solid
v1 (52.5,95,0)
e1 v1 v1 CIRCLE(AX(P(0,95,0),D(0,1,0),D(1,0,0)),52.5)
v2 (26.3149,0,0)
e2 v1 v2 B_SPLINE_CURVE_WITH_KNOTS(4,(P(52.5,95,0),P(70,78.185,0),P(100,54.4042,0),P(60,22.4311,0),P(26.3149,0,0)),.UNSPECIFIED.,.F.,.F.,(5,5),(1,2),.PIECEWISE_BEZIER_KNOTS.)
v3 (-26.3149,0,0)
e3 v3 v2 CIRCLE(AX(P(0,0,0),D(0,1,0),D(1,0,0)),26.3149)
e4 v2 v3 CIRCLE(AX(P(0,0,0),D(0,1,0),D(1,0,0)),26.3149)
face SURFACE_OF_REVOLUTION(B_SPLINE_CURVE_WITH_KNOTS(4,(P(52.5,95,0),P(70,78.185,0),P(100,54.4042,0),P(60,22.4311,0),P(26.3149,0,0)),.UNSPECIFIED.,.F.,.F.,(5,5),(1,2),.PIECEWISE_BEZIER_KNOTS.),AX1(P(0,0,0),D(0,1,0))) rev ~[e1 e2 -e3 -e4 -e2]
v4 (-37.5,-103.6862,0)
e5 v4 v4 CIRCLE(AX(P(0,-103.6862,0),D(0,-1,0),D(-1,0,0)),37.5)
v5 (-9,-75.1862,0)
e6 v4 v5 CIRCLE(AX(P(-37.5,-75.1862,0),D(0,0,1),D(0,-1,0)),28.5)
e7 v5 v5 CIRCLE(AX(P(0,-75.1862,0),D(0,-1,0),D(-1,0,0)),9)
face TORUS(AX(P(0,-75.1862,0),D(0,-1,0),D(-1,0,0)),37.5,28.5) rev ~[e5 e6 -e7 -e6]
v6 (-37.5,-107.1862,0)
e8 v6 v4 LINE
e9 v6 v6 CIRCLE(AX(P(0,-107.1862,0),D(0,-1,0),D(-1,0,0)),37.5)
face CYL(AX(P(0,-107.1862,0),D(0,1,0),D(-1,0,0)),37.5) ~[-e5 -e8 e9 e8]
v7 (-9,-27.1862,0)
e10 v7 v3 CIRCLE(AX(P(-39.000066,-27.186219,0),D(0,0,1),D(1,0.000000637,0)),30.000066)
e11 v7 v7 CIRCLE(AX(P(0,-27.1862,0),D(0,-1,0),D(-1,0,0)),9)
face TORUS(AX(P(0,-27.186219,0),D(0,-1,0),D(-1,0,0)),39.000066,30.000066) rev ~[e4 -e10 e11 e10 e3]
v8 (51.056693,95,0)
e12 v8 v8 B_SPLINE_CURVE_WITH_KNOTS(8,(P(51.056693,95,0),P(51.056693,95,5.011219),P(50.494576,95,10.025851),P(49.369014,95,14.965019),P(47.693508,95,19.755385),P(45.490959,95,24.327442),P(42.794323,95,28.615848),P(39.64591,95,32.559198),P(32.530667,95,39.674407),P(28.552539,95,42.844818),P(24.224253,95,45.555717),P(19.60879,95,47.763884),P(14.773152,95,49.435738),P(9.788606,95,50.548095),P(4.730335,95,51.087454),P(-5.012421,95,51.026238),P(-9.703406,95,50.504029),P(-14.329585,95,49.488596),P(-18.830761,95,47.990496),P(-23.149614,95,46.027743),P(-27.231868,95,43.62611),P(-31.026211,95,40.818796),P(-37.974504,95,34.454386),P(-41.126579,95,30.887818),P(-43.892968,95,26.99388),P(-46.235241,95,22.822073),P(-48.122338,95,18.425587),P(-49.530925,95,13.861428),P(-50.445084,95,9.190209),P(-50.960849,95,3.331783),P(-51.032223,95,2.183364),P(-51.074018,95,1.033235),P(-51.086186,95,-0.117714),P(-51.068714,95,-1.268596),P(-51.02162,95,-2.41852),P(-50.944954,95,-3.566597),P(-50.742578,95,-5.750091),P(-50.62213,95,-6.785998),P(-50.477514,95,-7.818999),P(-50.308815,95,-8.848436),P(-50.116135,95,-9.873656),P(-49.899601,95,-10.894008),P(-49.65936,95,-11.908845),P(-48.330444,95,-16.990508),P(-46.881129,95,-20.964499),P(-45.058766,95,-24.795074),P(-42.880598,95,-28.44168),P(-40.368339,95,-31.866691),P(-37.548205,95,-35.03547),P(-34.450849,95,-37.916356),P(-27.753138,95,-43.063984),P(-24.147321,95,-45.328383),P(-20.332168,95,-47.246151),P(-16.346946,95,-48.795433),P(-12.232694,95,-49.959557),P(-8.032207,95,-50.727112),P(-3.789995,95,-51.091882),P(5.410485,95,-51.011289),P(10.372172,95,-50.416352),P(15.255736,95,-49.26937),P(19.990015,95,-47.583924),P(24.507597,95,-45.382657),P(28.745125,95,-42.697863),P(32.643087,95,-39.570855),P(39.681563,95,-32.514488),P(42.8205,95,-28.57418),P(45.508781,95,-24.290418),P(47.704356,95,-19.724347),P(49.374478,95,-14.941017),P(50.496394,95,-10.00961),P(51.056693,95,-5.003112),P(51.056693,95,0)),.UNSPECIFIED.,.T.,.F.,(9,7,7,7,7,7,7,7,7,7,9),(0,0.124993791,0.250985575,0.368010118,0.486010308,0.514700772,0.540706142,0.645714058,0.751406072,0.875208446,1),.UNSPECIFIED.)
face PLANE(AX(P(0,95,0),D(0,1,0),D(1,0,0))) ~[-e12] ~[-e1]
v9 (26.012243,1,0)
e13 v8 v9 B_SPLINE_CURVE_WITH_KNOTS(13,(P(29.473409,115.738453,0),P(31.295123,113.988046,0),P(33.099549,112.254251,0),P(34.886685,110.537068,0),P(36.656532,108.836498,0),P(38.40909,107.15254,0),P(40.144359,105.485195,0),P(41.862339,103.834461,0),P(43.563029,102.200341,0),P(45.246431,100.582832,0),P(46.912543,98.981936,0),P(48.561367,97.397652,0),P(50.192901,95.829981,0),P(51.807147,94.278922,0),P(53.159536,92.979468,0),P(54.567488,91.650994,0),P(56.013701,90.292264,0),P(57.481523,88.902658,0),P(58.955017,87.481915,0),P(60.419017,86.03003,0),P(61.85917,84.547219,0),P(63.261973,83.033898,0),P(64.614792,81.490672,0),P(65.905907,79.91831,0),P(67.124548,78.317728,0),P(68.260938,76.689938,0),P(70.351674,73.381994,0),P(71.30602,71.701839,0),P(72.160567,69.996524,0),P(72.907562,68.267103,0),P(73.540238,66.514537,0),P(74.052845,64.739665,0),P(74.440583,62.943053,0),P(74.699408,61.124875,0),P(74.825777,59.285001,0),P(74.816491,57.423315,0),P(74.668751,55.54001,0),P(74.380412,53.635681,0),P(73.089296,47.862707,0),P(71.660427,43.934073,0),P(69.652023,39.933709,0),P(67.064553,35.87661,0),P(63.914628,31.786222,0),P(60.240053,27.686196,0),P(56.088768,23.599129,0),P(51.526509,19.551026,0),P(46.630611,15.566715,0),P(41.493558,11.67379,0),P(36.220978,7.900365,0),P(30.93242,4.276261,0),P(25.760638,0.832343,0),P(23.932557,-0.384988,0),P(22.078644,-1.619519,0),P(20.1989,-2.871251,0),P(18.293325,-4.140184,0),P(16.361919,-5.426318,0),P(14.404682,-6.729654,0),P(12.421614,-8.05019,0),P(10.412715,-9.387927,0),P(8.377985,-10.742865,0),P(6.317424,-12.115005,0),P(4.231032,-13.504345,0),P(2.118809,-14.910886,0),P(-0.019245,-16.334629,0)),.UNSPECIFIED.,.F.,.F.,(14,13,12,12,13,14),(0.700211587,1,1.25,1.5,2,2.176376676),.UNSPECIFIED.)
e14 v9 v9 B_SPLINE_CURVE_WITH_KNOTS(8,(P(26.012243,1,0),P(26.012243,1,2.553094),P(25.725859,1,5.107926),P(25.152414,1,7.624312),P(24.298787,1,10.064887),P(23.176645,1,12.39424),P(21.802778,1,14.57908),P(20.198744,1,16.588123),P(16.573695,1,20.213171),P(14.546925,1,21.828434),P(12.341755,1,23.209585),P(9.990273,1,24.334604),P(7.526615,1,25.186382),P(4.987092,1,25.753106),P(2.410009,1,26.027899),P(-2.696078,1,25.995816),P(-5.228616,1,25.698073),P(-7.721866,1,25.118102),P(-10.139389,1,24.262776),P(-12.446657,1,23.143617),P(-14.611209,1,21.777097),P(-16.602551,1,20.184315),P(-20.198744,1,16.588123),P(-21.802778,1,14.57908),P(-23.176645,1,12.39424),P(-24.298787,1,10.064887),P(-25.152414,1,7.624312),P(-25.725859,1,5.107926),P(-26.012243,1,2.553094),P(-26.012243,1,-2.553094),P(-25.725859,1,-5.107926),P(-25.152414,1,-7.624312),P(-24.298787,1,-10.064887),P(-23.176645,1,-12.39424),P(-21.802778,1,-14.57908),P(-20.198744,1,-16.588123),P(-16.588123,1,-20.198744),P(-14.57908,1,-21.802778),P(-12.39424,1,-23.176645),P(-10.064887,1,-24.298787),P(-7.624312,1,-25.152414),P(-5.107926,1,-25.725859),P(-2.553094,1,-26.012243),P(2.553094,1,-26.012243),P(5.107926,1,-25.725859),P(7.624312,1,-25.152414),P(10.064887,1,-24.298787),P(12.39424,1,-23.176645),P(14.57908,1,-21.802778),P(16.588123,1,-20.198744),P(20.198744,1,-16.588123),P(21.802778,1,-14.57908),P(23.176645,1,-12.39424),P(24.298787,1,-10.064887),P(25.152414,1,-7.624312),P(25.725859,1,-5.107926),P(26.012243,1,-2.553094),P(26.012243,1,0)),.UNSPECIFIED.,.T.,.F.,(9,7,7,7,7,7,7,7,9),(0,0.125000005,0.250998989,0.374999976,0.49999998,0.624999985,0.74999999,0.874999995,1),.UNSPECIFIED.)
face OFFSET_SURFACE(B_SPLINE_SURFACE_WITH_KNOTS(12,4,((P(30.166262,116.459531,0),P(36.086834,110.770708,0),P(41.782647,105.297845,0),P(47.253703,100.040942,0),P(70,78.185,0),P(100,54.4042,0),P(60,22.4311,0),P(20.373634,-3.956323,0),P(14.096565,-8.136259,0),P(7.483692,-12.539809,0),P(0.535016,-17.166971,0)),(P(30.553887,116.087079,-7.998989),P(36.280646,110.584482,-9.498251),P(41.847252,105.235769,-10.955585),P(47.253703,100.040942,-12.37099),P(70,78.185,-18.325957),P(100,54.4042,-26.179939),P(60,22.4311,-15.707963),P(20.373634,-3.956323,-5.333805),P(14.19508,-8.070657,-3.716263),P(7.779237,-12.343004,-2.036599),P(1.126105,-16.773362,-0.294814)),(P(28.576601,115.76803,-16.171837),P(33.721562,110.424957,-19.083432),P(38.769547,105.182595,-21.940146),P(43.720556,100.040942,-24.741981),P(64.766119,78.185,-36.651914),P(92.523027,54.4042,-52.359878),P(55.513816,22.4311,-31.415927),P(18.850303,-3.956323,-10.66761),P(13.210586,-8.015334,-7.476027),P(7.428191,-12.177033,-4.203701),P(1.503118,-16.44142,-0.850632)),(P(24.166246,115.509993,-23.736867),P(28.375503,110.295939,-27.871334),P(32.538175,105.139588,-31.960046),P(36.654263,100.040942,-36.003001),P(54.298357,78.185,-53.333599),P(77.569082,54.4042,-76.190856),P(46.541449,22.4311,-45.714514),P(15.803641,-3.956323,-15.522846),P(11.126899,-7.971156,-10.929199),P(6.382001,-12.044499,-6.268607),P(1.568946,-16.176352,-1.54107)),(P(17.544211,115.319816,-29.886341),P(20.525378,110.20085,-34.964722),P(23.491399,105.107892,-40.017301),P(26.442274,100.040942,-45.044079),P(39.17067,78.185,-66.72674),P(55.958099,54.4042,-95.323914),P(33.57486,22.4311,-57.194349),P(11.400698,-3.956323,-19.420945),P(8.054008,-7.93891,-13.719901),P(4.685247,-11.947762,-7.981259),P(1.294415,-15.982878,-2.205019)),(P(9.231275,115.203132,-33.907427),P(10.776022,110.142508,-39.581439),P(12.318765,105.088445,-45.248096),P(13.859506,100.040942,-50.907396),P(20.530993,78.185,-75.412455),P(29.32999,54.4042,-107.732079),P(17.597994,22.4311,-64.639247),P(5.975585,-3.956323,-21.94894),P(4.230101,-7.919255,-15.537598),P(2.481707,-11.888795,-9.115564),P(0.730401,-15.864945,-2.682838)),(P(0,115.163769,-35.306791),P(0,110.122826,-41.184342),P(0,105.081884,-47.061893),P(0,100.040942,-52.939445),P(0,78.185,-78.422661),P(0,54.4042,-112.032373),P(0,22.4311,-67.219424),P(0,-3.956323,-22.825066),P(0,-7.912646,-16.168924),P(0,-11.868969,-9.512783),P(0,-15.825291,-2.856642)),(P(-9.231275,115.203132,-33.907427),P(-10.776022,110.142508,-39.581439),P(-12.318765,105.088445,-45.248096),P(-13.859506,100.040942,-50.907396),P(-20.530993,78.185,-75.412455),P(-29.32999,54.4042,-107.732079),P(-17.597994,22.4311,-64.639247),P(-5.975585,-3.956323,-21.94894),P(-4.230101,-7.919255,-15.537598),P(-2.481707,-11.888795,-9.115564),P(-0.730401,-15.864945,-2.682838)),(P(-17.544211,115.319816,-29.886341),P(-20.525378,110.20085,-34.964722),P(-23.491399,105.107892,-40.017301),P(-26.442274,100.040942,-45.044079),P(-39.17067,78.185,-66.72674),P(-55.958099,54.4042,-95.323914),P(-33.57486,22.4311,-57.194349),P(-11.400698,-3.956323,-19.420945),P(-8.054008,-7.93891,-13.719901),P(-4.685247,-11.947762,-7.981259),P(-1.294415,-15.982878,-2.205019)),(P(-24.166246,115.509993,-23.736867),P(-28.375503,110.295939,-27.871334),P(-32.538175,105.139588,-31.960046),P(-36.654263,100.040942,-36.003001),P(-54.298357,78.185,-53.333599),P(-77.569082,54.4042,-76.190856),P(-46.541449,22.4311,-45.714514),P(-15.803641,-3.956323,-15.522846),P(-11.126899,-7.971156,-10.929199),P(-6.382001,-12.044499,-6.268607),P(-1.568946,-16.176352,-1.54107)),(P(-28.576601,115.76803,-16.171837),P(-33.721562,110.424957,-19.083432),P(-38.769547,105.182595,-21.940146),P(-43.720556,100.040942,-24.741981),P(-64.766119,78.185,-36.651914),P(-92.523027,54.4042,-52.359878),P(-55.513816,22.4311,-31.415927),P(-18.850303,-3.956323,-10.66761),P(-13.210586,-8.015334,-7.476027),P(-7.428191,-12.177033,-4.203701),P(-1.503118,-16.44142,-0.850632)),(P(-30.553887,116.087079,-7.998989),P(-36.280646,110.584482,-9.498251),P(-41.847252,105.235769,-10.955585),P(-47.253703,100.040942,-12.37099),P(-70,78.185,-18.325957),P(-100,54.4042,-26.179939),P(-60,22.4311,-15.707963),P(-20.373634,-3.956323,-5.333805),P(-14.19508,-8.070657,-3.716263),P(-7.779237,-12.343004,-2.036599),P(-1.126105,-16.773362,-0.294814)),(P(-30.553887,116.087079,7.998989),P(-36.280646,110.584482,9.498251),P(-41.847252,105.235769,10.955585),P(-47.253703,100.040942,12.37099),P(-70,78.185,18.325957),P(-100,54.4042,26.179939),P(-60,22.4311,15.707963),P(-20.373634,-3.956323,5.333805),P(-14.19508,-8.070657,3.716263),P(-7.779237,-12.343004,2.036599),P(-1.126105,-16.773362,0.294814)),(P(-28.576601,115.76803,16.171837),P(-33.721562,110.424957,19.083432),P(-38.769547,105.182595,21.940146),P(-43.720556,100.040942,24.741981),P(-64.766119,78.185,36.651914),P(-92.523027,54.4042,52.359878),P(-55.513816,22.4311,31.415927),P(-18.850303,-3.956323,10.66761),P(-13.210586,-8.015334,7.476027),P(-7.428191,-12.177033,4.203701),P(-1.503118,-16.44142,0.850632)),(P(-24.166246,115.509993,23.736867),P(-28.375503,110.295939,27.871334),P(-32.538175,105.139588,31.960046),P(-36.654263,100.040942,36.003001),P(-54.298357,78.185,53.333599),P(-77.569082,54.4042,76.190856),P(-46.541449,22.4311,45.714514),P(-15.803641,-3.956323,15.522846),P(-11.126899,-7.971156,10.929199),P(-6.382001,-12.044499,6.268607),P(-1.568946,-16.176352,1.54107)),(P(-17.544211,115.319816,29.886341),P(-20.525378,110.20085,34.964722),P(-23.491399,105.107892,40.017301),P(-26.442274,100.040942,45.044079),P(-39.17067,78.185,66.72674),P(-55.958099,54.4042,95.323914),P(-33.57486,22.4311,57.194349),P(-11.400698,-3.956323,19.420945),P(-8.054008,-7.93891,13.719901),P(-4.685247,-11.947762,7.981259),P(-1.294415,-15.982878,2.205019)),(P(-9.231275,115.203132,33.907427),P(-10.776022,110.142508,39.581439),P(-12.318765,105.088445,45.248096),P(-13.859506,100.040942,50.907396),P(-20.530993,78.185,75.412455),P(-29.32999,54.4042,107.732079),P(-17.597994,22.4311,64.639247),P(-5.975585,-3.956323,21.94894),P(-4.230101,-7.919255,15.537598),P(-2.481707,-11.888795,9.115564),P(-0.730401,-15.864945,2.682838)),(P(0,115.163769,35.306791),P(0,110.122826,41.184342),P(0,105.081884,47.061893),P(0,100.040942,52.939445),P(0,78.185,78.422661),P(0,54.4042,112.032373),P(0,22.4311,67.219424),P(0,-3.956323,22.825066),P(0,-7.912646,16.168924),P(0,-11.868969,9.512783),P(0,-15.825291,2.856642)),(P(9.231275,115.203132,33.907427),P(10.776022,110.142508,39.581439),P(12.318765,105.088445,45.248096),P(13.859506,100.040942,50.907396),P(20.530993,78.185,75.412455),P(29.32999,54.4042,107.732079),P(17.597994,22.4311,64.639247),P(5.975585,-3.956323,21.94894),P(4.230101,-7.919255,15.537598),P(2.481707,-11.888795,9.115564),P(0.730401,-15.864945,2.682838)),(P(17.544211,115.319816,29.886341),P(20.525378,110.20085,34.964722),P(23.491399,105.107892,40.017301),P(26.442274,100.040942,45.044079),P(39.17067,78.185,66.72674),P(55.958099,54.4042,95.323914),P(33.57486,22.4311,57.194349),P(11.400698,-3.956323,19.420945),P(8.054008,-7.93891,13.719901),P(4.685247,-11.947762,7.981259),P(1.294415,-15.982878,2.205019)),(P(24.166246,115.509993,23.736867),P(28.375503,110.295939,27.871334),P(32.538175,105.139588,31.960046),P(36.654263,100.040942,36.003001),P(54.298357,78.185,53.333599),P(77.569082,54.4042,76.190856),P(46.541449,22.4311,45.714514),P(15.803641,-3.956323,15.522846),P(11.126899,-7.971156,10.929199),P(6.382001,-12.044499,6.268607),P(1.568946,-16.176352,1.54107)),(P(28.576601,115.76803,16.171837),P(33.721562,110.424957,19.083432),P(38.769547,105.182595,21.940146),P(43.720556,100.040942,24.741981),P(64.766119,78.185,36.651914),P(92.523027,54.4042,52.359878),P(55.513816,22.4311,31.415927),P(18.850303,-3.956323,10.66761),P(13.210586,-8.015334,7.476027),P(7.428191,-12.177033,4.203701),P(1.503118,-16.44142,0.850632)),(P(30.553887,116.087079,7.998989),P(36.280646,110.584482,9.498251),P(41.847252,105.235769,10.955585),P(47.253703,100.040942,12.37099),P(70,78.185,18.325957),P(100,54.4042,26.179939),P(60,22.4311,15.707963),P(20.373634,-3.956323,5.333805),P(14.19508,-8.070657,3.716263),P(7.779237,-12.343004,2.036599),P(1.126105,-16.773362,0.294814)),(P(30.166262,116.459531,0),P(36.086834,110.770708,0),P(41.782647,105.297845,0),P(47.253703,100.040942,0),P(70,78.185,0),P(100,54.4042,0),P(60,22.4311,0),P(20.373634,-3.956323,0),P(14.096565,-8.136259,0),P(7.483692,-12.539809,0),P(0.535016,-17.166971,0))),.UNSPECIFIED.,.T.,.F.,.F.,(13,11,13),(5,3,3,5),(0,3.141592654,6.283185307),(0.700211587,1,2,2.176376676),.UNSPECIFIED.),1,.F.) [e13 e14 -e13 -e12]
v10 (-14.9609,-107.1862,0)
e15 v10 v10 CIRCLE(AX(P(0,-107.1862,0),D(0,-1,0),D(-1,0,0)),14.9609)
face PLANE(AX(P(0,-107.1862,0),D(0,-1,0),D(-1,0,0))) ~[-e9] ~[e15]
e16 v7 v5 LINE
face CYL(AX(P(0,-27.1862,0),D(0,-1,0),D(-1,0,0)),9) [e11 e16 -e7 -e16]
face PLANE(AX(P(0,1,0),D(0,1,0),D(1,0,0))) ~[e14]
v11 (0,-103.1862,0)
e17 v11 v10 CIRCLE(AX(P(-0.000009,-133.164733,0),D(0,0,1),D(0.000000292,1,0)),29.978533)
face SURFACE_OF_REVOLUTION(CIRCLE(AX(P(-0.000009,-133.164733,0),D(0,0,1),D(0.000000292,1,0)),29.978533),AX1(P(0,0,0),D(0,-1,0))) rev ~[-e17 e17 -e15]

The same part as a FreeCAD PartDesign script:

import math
import FreeCAD as App
import Part
import Sketcher

V = App.Vector


def faces_at(feature, points):
    """Names of the faces that lie closest to the given points."""
    faces = feature.Shape.Faces
    near = lambda p: min(range(len(faces)), key=lambda i: faces[i].distToShape(Part.Vertex(*p))[0])
    return sorted({f"Face{near(p) + 1}" for p in points})

doc = App.newDocument("Part")
body = doc.addObject("PartDesign::Body", "Body")

# Sketch on XY plane
sketch1 = body.newObject("Sketcher::SketchObject", "Sketch")
sketch1.AttachmentSupport = (doc.getObject("XY_Plane"), [""])
sketch1.MapMode = "FlatFace"
sketch1.addGeometry([
    Part.LineSegment(V(0, 95, 0), V(0, 0, 0)),
    Part.LineSegment(V(0, 0, 0), V(26.3149, 0, 0)),
    Part.BSplineCurve([V(52.5, 95, 0), V(70, 78.185, 0), V(100, 54.4042, 0), V(60, 22.4311, 0), V(26.3149, 0, 0)], [5, 5], [1, 2], False, 4, [1, 1, 1, 1, 1], False),
    Part.LineSegment(V(52.5, 95, 0), V(0, 95, 0)),
], False)
sketch1.addConstraint([
    Sketcher.Constraint("Block", 2),
    Sketcher.Constraint("Coincident", 0, 2, 1, 1),
    Sketcher.Constraint("Coincident", 1, 2, 2, 2),
    Sketcher.Constraint("Coincident", 2, 1, 3, 1),
    Sketcher.Constraint("Coincident", 3, 2, 0, 1),
    Sketcher.Constraint("Vertical", 0),
    Sketcher.Constraint("Horizontal", 1),
    Sketcher.Constraint("Horizontal", 3),
    Sketcher.Constraint("PointOnObject", 3, 2, -2),
])
revolution = body.newObject("PartDesign::Revolution", "Revolution")
revolution.Profile = sketch1
revolution.ReferenceAxis = (sketch1, ["V_Axis"])
revolution.Angle = 360
doc.recompute()

thickness = body.newObject("PartDesign::Thickness", "Thickness")
thickness.Base = (revolution, faces_at(revolution, [(15.875, 95, 30.793)]))
thickness.Value = 1
thickness.Reversed = True
thickness.Join = "Intersection"

# Sketch on XY plane
sketch2 = body.newObject("Sketcher::SketchObject", "Sketch001")
sketch2.AttachmentSupport = (doc.getObject("XY_Plane"), [""])
sketch2.MapMode = "FlatFace"
sketch2.addGeometry([
    Part.LineSegment(V(0, -103.1862, 0), V(0, 0, 0)),  # 0
    Part.LineSegment(V(0, 0, 0), V(-26.3149, 0, 0)),  # 1
    Part.ArcOfCircle(Part.Circle(V(-39, -27.1862, 0), V(0, 0, 1), 30), math.radians(0), math.radians(64.98621)),  # 2
    Part.LineSegment(V(-9, -27.1862, 0), V(-9, -75.1862, 0)),  # 3
    Part.ArcOfCircle(Part.Circle(V(-37.5, -75.1862, 0), V(0, 0, 1), 28.5), math.radians(-90), math.radians(0)),  # 4
    Part.LineSegment(V(-37.5, -103.6862, 0), V(-37.5, -107.1862, 0)),  # 5
    Part.LineSegment(V(-37.5, -107.1862, 0), V(-14.9609, -107.1862, 0)),  # 6
    Part.ArcOfCircle(Part.Circle(V(0, -133.1648, 0), V(0, 0, 1), 29.9786), math.radians(90), math.radians(119.937349)),  # 7
], False)
sketch2.addConstraint([
    Sketcher.Constraint("Coincident", 0, 2, 1, 1),
    Sketcher.Constraint("Coincident", 1, 2, 2, 2),
    Sketcher.Constraint("Tangent", 2, 1, 3, 1),
    Sketcher.Constraint("Tangent", 3, 2, 4, 2),
    Sketcher.Constraint("Coincident", 4, 1, 5, 1),
    Sketcher.Constraint("Coincident", 5, 2, 6, 1),
    Sketcher.Constraint("Coincident", 6, 2, 7, 2),
    Sketcher.Constraint("Coincident", 7, 1, 0, 1),
    Sketcher.Constraint("Vertical", 0),
    Sketcher.Constraint("Horizontal", 1),
    Sketcher.Constraint("Vertical", 3),
    Sketcher.Constraint("Vertical", 5),
    Sketcher.Constraint("Horizontal", 6),
    Sketcher.Constraint("Coincident", 0, 2, -1, 1),
    Sketcher.Constraint("PointOnObject", 7, 3, -2),
    Sketcher.Constraint("Radius", 2, 30.0),
    Sketcher.Constraint("DistanceY", 5, 2, 5, 1, 3.5),
    Sketcher.Constraint("DistanceX", 2, 1, -1, 1, 9.0),
    Sketcher.Constraint("DistanceY", 5, 2, 2, 3, 80.0),
    Sketcher.Constraint("DistanceY", 6, 2, 7, 1, 4.0),
    Sketcher.Constraint("Radius", 4, 28.5),
    Sketcher.Constraint("DistanceX", 4, 1, -1, 1, 37.5),
    Sketcher.Constraint("Radius", 7, 29.9786),
    Sketcher.Constraint("DistanceX", 1, 2, 1, 1, 26.315),
])
revolution2 = body.newObject("PartDesign::Revolution", "Revolution001")
revolution2.Profile = sketch2
revolution2.ReferenceAxis = (sketch2, ["V_Axis"])
revolution2.Angle = 360

doc.recompute()
